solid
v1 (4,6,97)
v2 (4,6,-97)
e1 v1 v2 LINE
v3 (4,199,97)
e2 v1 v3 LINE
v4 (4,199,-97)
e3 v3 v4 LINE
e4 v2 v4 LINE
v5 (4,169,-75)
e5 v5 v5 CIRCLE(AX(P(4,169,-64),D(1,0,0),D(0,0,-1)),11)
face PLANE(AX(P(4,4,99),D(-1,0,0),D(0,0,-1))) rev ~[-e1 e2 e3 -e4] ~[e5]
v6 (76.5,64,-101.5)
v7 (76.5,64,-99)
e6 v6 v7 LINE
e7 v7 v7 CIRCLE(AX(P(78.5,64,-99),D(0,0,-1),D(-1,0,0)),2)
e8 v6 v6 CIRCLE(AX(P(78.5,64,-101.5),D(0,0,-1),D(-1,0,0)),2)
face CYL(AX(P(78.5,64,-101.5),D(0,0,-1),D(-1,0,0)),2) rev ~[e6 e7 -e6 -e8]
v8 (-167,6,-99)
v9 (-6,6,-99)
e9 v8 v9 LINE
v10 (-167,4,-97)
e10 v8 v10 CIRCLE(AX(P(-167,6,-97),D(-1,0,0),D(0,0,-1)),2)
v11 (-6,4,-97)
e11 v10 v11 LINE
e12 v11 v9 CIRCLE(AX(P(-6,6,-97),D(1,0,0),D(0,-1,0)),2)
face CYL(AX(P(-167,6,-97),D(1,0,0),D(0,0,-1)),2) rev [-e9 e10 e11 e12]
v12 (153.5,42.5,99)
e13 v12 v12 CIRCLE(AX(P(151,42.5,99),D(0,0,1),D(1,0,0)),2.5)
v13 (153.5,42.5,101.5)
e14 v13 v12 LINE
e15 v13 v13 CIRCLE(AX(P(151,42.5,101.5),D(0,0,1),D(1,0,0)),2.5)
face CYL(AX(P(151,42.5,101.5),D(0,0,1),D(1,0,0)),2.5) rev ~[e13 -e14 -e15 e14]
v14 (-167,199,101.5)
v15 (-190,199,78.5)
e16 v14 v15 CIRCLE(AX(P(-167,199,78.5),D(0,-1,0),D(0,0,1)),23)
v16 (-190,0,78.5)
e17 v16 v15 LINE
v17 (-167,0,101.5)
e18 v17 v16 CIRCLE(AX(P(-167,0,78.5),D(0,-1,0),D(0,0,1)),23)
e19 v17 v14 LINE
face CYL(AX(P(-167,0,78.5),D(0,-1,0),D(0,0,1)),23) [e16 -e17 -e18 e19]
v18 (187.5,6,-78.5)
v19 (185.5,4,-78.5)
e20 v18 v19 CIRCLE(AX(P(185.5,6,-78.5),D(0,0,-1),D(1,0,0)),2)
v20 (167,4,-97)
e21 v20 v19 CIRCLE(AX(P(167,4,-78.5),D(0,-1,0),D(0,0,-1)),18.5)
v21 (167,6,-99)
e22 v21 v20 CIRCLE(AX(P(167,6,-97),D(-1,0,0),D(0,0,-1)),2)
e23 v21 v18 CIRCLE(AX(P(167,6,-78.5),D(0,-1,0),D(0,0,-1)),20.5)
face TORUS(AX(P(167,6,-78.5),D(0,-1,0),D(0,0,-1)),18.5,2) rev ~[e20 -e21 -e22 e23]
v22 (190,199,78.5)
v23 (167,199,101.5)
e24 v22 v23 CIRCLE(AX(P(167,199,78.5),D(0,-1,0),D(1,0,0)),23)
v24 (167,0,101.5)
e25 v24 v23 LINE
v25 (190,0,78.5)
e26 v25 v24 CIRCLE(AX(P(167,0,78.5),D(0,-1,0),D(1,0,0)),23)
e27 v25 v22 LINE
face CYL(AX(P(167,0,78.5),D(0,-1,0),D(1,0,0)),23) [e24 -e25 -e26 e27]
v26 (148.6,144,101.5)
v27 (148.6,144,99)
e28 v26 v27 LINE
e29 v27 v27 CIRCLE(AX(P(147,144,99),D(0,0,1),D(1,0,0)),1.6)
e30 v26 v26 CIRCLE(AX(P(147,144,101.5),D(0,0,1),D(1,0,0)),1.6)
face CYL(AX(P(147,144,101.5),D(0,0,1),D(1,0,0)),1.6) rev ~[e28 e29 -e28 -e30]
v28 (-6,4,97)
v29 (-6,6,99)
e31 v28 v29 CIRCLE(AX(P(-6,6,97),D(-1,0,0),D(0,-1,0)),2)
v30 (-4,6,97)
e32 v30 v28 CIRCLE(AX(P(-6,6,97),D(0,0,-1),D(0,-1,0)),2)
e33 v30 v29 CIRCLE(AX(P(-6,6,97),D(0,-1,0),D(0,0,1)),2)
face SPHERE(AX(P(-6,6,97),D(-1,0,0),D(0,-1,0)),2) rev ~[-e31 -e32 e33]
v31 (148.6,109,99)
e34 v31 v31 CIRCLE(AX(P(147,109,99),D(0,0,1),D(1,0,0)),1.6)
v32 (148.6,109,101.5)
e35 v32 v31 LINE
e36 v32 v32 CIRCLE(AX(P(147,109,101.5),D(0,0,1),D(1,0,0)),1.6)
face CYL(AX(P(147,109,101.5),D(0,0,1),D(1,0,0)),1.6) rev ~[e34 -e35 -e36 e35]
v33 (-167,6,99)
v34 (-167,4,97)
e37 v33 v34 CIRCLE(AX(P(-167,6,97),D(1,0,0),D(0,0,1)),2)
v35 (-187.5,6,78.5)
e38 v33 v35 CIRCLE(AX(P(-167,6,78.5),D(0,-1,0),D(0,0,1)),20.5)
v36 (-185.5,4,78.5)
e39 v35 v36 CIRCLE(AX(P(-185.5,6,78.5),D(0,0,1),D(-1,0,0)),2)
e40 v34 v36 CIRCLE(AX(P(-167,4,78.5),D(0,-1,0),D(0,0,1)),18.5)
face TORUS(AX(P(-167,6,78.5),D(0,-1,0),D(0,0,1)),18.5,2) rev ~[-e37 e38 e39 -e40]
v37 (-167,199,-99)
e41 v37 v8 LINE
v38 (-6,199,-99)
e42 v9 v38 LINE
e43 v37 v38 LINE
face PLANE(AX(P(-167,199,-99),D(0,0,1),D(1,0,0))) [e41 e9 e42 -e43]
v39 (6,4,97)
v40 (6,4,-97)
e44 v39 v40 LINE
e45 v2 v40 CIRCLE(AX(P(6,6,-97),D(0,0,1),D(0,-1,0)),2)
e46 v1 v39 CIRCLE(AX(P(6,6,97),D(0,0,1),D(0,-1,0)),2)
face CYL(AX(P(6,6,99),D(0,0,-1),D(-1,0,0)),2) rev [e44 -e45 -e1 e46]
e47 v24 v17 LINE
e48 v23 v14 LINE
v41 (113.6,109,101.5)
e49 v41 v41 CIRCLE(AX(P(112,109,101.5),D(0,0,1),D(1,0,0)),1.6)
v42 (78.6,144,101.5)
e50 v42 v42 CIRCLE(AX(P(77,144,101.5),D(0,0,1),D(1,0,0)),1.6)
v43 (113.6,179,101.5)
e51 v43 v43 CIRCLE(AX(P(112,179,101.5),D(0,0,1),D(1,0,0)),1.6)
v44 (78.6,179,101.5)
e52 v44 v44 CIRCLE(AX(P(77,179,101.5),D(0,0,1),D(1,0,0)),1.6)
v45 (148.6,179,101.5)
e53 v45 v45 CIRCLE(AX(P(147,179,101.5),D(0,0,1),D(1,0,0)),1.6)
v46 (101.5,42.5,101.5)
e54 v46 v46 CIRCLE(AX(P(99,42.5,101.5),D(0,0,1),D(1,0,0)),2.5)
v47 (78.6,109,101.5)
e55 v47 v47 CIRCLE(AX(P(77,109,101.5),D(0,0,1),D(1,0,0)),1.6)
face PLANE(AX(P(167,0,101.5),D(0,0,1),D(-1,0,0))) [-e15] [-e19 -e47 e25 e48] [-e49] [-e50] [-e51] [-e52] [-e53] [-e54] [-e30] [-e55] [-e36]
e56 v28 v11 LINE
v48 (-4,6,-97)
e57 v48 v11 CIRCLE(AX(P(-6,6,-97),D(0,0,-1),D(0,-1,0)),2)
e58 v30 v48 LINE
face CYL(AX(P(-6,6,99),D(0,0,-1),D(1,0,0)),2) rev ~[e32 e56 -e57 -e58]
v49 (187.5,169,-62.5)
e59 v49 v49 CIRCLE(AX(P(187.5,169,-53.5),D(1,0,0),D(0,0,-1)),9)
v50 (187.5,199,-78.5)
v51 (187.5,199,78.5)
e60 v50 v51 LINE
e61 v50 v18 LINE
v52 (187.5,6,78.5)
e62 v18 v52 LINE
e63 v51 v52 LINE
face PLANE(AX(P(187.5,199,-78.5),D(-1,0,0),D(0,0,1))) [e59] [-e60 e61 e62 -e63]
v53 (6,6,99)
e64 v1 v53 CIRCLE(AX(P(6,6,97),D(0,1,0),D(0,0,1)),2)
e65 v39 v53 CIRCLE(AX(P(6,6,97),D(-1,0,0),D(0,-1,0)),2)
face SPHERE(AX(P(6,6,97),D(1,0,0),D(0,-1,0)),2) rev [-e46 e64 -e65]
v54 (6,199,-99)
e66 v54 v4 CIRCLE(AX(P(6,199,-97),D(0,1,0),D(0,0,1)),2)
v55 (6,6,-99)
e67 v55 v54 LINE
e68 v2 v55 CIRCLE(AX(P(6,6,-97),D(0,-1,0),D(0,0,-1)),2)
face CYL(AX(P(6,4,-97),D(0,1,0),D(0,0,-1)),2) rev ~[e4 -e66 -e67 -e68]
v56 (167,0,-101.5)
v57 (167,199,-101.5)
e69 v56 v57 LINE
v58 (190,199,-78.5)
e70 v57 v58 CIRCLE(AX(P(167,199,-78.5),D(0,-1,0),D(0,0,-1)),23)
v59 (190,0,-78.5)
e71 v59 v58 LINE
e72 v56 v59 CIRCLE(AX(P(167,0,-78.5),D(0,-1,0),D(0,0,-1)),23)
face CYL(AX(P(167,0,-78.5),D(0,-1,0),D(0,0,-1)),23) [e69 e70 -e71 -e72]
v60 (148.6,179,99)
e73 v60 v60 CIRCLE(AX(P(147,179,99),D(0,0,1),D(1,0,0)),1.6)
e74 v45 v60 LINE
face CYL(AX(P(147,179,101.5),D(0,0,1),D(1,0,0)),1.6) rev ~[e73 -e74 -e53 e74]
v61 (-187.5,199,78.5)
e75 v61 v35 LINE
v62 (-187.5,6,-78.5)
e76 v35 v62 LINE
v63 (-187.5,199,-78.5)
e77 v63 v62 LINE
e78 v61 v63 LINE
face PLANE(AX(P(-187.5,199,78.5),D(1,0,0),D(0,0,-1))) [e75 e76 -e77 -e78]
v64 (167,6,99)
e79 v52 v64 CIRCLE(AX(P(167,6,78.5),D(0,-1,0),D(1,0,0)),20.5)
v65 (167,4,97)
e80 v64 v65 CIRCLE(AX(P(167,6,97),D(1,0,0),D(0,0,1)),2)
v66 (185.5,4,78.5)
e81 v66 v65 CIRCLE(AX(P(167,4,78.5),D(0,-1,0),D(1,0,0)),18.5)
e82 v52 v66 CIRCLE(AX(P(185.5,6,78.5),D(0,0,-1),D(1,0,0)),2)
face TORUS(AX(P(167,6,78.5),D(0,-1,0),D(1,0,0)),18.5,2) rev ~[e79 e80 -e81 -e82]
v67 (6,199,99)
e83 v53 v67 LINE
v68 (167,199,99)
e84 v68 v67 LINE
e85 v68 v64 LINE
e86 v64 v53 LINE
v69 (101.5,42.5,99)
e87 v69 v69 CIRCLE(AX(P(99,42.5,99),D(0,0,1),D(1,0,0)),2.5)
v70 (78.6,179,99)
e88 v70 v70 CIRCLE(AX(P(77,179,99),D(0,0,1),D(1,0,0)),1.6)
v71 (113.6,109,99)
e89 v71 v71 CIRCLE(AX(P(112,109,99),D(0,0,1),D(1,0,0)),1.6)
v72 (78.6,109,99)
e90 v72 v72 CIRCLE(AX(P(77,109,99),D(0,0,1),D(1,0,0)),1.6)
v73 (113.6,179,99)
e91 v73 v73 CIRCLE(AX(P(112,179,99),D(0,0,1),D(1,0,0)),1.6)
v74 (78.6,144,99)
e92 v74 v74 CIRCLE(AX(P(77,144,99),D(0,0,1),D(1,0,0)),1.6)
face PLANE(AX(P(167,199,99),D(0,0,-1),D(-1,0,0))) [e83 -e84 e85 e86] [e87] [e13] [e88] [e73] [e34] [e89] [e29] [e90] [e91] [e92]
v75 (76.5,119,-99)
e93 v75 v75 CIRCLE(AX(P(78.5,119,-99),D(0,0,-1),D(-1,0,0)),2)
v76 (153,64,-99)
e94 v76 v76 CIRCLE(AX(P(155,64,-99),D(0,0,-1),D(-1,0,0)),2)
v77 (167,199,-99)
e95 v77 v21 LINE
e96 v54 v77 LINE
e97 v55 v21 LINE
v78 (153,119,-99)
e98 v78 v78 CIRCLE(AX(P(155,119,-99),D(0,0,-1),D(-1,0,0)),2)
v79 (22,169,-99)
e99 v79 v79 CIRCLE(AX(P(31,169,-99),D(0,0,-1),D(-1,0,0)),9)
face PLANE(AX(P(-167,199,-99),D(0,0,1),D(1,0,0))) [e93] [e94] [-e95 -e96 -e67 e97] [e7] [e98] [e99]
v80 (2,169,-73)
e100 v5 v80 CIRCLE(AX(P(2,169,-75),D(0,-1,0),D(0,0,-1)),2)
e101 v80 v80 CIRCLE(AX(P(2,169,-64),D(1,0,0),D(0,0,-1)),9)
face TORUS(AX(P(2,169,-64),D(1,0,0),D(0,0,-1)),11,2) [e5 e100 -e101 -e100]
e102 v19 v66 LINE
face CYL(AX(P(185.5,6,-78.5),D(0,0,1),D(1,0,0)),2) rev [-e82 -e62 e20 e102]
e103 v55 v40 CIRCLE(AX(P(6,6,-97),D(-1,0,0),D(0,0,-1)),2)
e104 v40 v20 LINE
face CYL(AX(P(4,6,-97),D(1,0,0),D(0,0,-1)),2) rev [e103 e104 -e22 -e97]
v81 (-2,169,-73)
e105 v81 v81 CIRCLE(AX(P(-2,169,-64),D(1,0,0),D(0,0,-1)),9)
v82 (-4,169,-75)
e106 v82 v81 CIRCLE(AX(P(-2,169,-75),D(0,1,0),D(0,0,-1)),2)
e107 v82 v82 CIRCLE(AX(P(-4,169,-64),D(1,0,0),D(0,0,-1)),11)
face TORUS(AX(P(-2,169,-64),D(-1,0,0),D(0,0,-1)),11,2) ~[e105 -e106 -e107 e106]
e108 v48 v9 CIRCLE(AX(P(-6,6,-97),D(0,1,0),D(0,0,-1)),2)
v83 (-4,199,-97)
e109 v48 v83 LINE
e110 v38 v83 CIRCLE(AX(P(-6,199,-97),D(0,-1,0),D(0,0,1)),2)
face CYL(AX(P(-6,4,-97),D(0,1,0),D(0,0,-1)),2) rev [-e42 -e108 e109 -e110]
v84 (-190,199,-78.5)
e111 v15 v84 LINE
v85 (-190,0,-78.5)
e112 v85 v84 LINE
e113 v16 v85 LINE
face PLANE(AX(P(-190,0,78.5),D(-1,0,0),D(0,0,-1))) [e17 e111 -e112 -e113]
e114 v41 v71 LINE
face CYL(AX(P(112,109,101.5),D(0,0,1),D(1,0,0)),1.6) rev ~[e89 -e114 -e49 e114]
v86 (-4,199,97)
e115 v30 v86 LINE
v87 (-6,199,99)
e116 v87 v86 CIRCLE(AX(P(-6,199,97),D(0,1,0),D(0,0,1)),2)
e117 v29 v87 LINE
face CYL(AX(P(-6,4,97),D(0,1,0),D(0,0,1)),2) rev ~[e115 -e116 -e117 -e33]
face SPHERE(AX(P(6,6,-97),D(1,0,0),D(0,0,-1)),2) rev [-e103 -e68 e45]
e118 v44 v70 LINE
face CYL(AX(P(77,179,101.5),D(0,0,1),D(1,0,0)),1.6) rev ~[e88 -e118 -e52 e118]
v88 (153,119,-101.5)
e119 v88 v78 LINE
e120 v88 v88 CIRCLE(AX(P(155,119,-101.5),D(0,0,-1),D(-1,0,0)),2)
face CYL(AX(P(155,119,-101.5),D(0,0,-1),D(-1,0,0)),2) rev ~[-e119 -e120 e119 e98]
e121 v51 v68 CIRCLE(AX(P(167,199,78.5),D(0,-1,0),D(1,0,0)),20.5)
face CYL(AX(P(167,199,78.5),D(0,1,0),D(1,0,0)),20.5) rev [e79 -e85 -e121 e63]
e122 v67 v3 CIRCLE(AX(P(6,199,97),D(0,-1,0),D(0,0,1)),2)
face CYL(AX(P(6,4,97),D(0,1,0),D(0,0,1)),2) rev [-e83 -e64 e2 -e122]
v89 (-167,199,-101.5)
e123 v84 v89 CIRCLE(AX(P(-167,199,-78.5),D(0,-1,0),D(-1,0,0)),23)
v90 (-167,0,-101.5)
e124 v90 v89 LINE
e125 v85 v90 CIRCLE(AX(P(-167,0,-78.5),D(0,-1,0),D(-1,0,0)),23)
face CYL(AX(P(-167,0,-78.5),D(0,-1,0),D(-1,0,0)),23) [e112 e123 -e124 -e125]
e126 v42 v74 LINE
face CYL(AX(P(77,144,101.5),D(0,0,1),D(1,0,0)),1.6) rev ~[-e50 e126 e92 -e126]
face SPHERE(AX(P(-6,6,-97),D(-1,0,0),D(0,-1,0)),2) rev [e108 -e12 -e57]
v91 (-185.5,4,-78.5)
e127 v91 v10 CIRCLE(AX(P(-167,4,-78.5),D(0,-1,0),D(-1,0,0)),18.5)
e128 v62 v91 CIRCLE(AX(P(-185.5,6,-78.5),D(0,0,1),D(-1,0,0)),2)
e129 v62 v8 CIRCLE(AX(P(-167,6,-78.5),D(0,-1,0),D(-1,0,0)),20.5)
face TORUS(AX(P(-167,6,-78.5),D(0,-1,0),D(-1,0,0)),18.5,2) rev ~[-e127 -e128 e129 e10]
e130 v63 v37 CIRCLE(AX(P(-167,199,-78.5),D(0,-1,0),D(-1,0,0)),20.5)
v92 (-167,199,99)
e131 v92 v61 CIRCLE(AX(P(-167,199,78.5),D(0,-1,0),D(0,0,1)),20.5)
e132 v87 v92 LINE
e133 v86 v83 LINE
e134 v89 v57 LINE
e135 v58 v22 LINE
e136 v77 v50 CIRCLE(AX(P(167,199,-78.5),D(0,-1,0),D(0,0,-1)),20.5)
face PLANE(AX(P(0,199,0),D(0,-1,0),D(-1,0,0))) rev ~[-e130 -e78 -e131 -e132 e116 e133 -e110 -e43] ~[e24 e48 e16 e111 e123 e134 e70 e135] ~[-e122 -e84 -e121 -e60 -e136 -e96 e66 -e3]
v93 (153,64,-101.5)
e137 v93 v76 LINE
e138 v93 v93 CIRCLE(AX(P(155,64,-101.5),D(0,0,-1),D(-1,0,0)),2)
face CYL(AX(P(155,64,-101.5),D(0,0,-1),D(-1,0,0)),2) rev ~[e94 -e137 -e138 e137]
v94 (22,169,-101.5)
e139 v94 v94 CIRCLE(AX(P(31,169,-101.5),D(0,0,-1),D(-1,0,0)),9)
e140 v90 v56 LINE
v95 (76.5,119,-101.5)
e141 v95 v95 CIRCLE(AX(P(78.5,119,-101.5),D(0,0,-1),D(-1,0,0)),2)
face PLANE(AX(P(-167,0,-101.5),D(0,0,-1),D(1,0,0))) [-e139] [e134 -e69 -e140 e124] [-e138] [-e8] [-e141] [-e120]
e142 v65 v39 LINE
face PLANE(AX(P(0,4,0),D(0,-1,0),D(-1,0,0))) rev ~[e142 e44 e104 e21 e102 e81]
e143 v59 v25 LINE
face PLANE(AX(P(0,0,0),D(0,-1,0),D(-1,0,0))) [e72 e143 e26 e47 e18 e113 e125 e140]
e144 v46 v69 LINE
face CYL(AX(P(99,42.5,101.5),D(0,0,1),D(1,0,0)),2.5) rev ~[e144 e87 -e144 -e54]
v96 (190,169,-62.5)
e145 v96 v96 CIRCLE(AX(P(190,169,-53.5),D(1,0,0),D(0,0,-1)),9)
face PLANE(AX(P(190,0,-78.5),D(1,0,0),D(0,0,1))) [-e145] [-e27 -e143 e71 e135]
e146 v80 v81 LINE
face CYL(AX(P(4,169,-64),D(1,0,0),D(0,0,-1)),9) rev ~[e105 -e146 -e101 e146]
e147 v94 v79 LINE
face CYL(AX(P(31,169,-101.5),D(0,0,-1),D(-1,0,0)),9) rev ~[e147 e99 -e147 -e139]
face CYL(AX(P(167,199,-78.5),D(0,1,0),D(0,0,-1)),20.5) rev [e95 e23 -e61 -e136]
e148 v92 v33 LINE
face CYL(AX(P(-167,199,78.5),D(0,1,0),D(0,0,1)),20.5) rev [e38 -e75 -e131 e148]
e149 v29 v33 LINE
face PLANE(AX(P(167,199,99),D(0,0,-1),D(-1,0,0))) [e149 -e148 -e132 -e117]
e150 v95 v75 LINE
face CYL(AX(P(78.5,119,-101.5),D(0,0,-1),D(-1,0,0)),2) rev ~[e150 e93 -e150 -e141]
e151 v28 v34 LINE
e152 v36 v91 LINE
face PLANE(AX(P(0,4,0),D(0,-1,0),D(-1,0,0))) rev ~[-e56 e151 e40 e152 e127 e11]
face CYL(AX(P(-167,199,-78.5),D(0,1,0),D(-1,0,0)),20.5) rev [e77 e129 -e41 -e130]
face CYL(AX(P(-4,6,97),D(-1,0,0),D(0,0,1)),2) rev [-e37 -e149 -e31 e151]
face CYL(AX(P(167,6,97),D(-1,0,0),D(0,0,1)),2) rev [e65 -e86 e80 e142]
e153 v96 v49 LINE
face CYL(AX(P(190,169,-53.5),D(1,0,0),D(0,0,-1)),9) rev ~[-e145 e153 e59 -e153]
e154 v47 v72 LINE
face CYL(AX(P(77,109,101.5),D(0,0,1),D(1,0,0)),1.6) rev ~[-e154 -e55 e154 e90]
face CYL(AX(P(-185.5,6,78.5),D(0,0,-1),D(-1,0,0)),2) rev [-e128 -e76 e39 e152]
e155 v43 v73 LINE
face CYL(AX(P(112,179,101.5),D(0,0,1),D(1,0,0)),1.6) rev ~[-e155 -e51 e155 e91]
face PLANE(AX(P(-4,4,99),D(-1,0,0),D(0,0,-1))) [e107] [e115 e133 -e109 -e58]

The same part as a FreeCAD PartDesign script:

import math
import FreeCAD as App
import Part
import Sketcher
from FreeCAD import Vector
Q = App.Units.Quantity


def edges_at(feature, points):
    """Names of the edges that pass closest to the given points."""
    edges = feature.Shape.Edges
    near = lambda p: min(range(len(edges)), key=lambda i: edges[i].distToShape(Part.Vertex(*p))[0])
    return sorted({f"Edge{near(p) + 1}" for p in points})

doc = App.newDocument("Part")
body = doc.addObject("PartDesign::Body", "Body")

sketch1 = doc.addObject("Sketcher::SketchObject", "Sketch")
body.addObject(sketch1)
sketch1.AttachmentSupport = (doc.XZ_Plane, [""])
sketch1.MapMode = "FlatFace"
sketch1.addGeometry([
    Part.LineSegment(Vector(167, -102, 0), Vector(-167, -102, 0)),
    Part.ArcOfCircle(Part.Circle(Vector(-167, -78, 0), Vector(0, 0, 1), 23), math.radians(-180), math.radians(-90)),
    Part.LineSegment(Vector(-190, -78, 0), Vector(-190, 78, 0)),
    Part.ArcOfCircle(Part.Circle(Vector(-167, 78, 0), Vector(0, 0, 1), 23), math.radians(90), math.radians(180)),
    Part.LineSegment(Vector(-167, 102, 0), Vector(167, 102, 0)),
    Part.ArcOfCircle(Part.Circle(Vector(167, 78, 0), Vector(0, 0, 1), 23), math.radians(0), math.radians(90)),
    Part.LineSegment(Vector(190, 78, 0), Vector(190, -78, 0)),
    Part.ArcOfCircle(Part.Circle(Vector(167, -78, 0), Vector(0, 0, 1), 23), math.radians(-90), math.radians(0)),
], False)
sketch1.addConstraint([
    Sketcher.Constraint("Tangent", 0, 2, 1, 2),
    Sketcher.Constraint("Tangent", 1, 1, 2, 1),
    Sketcher.Constraint("Tangent", 2, 2, 3, 2),
    Sketcher.Constraint("Tangent", 3, 1, 4, 1),
    Sketcher.Constraint("Tangent", 4, 2, 5, 2),
    Sketcher.Constraint("Tangent", 5, 1, 6, 1),
    Sketcher.Constraint("Tangent", 6, 2, 7, 2),
    Sketcher.Constraint("Tangent", 7, 1, 0, 1),
    Sketcher.Constraint("Horizontal", 0),
    Sketcher.Constraint("Vertical", 2),
    Sketcher.Constraint("Horizontal", 4),
    Sketcher.Constraint("Vertical", 6),
    Sketcher.Constraint("Equal", 1, 3),
    Sketcher.Constraint("Equal", 3, 5),
    Sketcher.Constraint("Equal", 5, 7),
    Sketcher.Constraint("Symmetric", 1, 3, 5, 3, -1, 1),
    Sketcher.Constraint("Radius", 1, Q("23 mm")),
    Sketcher.Constraint("DistanceX", 0, 2, 0, 1, Q("334 mm")),
    Sketcher.Constraint("DistanceY", 2, 1, 2, 2, Q("157 mm")),
])
pad1 = doc.addObject("PartDesign::Pad", "Pad")
body.addObject(pad1)
pad1.Profile = sketch1
pad1.Length = 199
pad1.Reversed = True

sketch2 = doc.addObject("Sketcher::SketchObject", "Sketch001")
body.addObject(sketch2)
sketch2.AttachmentSupport = (doc.XZ_Plane, [""])
sketch2.MapMode = "FlatFace"
sketch2.AttachmentOffset = App.Placement(Vector(0, 0, -199), App.Rotation())
sketch2.addGeometry([
    Part.LineSegment(Vector(167, -99, 0), Vector(-167, -99, 0)),
    Part.ArcOfCircle(Part.Circle(Vector(-167, -78, 0), Vector(0, 0, 1), 21), math.radians(-180), math.radians(-90)),
    Part.LineSegment(Vector(-188, -78, 0), Vector(-188, 78, 0)),
    Part.ArcOfCircle(Part.Circle(Vector(-167, 78, 0), Vector(0, 0, 1), 21), math.radians(90), math.radians(180)),
    Part.LineSegment(Vector(-167, 99, 0), Vector(167, 99, 0)),
    Part.ArcOfCircle(Part.Circle(Vector(167, 78, 0), Vector(0, 0, 1), 21), math.radians(0), math.radians(90)),
    Part.LineSegment(Vector(188, 78, 0), Vector(188, -78, 0)),
    Part.ArcOfCircle(Part.Circle(Vector(167, -78, 0), Vector(0, 0, 1), 21), math.radians(-90), math.radians(0)),
], False)
sketch2.addConstraint([
    Sketcher.Constraint("Tangent", 0, 2, 1, 2),
    Sketcher.Constraint("Tangent", 1, 1, 2, 1),
    Sketcher.Constraint("Tangent", 2, 2, 3, 2),
    Sketcher.Constraint("Tangent", 3, 1, 4, 1),
    Sketcher.Constraint("Tangent", 4, 2, 5, 2),
    Sketcher.Constraint("Tangent", 5, 1, 6, 1),
    Sketcher.Constraint("Tangent", 6, 2, 7, 2),
    Sketcher.Constraint("Tangent", 7, 1, 0, 1),
    Sketcher.Constraint("Horizontal", 0),
    Sketcher.Constraint("Vertical", 2),
    Sketcher.Constraint("Horizontal", 4),
    Sketcher.Constraint("Vertical", 6),
    Sketcher.Constraint("Equal", 1, 3),
    Sketcher.Constraint("Equal", 3, 5),
    Sketcher.Constraint("Equal", 5, 7),
    Sketcher.Constraint("Symmetric", 1, 3, 5, 3, -1, 1),
    Sketcher.Constraint("Radius", 1, Q("20.5 mm")),
    Sketcher.Constraint("DistanceX", 0, 2, 0, 1, Q("334 mm")),
    Sketcher.Constraint("DistanceY", 2, 1, 2, 2, Q("157 mm")),
])
pocket1 = doc.addObject("PartDesign::Pocket", "Pocket")
body.addObject(pocket1)
pocket1.Profile = sketch2
pocket1.Length = 195
pocket1.Reversed = True

sketch3 = doc.addObject("Sketcher::SketchObject", "Sketch002")
body.addObject(sketch3)
sketch3.AttachmentSupport = (doc.XZ_Plane, [""])
sketch3.MapMode = "FlatFace"
sketch3.AttachmentOffset = App.Placement(Vector(0, 0, -4), App.Rotation())
sketch3.addGeometry([
    Part.LineSegment(Vector(-4, -99, 0), Vector(-4, 99, 0)),
    Part.LineSegment(Vector(-4, 99, 0), Vector(4, 99, 0)),
    Part.LineSegment(Vector(4, 99, 0), Vector(4, -99, 0)),
    Part.LineSegment(Vector(4, -99, 0), Vector(-4, -99, 0)),
], False)
sketch3.addConstraint([
    Sketcher.Constraint("Coincident", 0, 2, 1, 1),
    Sketcher.Constraint("Coincident", 1, 2, 2, 1),
    Sketcher.Constraint("Coincident", 2, 2, 3, 1),
    Sketcher.Constraint("Coincident", 3, 2, 0, 1),
    Sketcher.Constraint("Vertical", 0),
    Sketcher.Constraint("Horizontal", 1),
    Sketcher.Constraint("Vertical", 2),
    Sketcher.Constraint("Horizontal", 3),
    Sketcher.Constraint("Symmetric", 0, 2, 2, 2, -1, 1),
    Sketcher.Constraint("DistanceX", 1, 1, 1, 2, Q("8 mm")),
    Sketcher.Constraint("DistanceY", 0, 1, 0, 2, Q("198 mm")),
])
pad2 = doc.addObject("PartDesign::Pad", "Pad001")
body.addObject(pad2)
pad2.Profile = sketch3
pad2.Length = 195
pad2.Reversed = True
doc.recompute()

fillet = doc.addObject("PartDesign::Fillet", "Fillet")
body.addObject(fillet)
fillet.Base = (pad2, edges_at(pad2, [
    (-181.496, 4, 92.996),
    (-187.5, 4, 0),
    (-181.496, 4, -92.996),
    (85.5, 4, -99),
    (181.496, 4, -92.996),
    (187.5, 4, 0),
    (181.496, 4, 92.996),
    (-85.5, 4, 99),
    (85.5, 4, 99),
    (-85.5, 4, -99),
    (4, 101.5, -99),
    (-4, 4, 0),
    (-4, 101.5, -99),
    (-4, 101.5, 99),
    (4, 4, 0),
    (4, 101.5, 99),
]))
fillet.Radius = 2

sketch4 = doc.addObject("Sketcher::SketchObject", "Sketch003")
body.addObject(sketch4)
sketch4.AttachmentSupport = (doc.XY_Plane, [""])
sketch4.MapMode = "FlatFace"
sketch4.AttachmentOffset = App.Placement(Vector(0, 0, -101.5), App.Rotation())
sketch4.addGeometry(Part.Circle(Vector(155, 119, 0), Vector(0, 0, 1), 2), False)
sketch4.addConstraint([
    Sketcher.Constraint("Diameter", 0, Q("4 mm")),
    Sketcher.Constraint("DistanceX", -1, 1, 0, 3, Q("155 mm")),
    Sketcher.Constraint("DistanceY", -1, 1, 0, 3, Q("119 mm")),
])
pocket2 = doc.addObject("PartDesign::Pocket", "Pocket001")
body.addObject(pocket2)
pocket2.Profile = sketch4
pocket2.Type = "UpToFirst"
pocket2.Reversed = True

sketch5 = doc.addObject("Sketcher::SketchObject", "Sketch004")
body.addObject(sketch5)
sketch5.AttachmentSupport = (doc.XY_Plane, [""])
sketch5.MapMode = "FlatFace"
sketch5.AttachmentOffset = App.Placement(Vector(0, 0, -101.5), App.Rotation())
sketch5.addGeometry(Part.Circle(Vector(155, 64, 0), Vector(0, 0, 1), 2), False)
sketch5.addConstraint([
    Sketcher.Constraint("Diameter", 0, Q("4 mm")),
    Sketcher.Constraint("DistanceX", -1, 1, 0, 3, Q("155 mm")),
    Sketcher.Constraint("DistanceY", -1, 1, 0, 3, Q("64 mm")),
])
pocket3 = doc.addObject("PartDesign::Pocket", "Pocket002")
body.addObject(pocket3)
pocket3.Profile = sketch5
pocket3.Type = "UpToFirst"
pocket3.Reversed = True

sketch6 = doc.addObject("Sketcher::SketchObject", "Sketch005")
body.addObject(sketch6)
sketch6.AttachmentSupport = (doc.XY_Plane, [""])
sketch6.MapMode = "FlatFace"
sketch6.AttachmentOffset = App.Placement(Vector(0, 0, -101.5), App.Rotation())
sketch6.addGeometry(Part.Circle(Vector(78.5, 64, 0), Vector(0, 0, 1), 2), False)
sketch6.addConstraint([
    Sketcher.Constraint("Diameter", 0, Q("4 mm")),
    Sketcher.Constraint("DistanceY", -1, 1, 0, 3, Q("64 mm")),
    Sketcher.Constraint("DistanceX", -1, 1, 0, 3, Q("78.5 mm")),
])
pocket4 = doc.addObject("PartDesign::Pocket", "Pocket003")
body.addObject(pocket4)
pocket4.Profile = sketch6
pocket4.Type = "UpToFirst"
pocket4.Reversed = True

sketch7 = doc.addObject("Sketcher::SketchObject", "Sketch006")
body.addObject(sketch7)
sketch7.AttachmentSupport = (doc.XY_Plane, [""])
sketch7.MapMode = "FlatFace"
sketch7.AttachmentOffset = App.Placement(Vector(0, 0, -101.5), App.Rotation())
sketch7.addGeometry(Part.Circle(Vector(78.5, 119, 0), Vector(0, 0, 1), 2), False)
sketch7.addConstraint([
    Sketcher.Constraint("Diameter", 0, Q("4 mm")),
    Sketcher.Constraint("DistanceY", -1, 1, 0, 3, Q("119 mm")),
    Sketcher.Constraint("DistanceX", -1, 1, 0, 3, Q("78.5 mm")),
])
pocket5 = doc.addObject("PartDesign::Pocket", "Pocket004")
body.addObject(pocket5)
pocket5.Profile = sketch7
pocket5.Type = "UpToFirst"
pocket5.Reversed = True

sketch8 = doc.addObject("Sketcher::SketchObject", "Sketch007")
body.addObject(sketch8)
sketch8.AttachmentSupport = (doc.XY_Plane, [""])
sketch8.MapMode = "FlatFace"
sketch8.AttachmentOffset = App.Placement(Vector(0, 0, -101.5), App.Rotation())
sketch8.addGeometry(Part.Circle(Vector(31, 169, 0), Vector(0, 0, 1), 9), False)
sketch8.addConstraint([
    Sketcher.Constraint("Diameter", 0, Q("18 mm")),
    Sketcher.Constraint("DistanceX", -1, 1, 0, 3, Q("31 mm")),
    Sketcher.Constraint("DistanceY", -1, 1, 0, 3, Q("169 mm")),
])
pocket6 = doc.addObject("PartDesign::Pocket", "Pocket005")
body.addObject(pocket6)
pocket6.Profile = sketch8
pocket6.Type = "UpToFirst"
pocket6.Reversed = True

sketch9 = doc.addObject("Sketcher::SketchObject", "Sketch008")
body.addObject(sketch9)
sketch9.AttachmentSupport = (doc.YZ_Plane, [""])
sketch9.MapMode = "FlatFace"
sketch9.AttachmentOffset = App.Placement(Vector(0, 0, 4), App.Rotation())
sketch9.addGeometry(Part.Circle(Vector(169, -64, 0), Vector(0, 0, 1), 9), False)
sketch9.addConstraint([
    Sketcher.Constraint("Diameter", 0, Q("18 mm")),
    Sketcher.Constraint("DistanceX", -1, 1, 0, 3, Q("169 mm")),
    Sketcher.Constraint("DistanceY", 0, 3, -1, 1, Q("64 mm")),
])
pocket7 = doc.addObject("PartDesign::Pocket", "Pocket006")
body.addObject(pocket7)
pocket7.Profile = sketch9
pocket7.Type = "UpToFirst"
doc.recompute()

fillet2 = doc.addObject("PartDesign::Fillet", "Fillet001")
body.addObject(fillet2)
fillet2.Base = (pocket7, edges_at(pocket7, [(-4, 169, -55), (4, 169, -55)]))
fillet2.Radius = 2

sketch10 = doc.addObject("Sketcher::SketchObject", "Sketch009")
body.addObject(sketch10)
sketch10.AttachmentSupport = (doc.YZ_Plane, [""])
sketch10.MapMode = "FlatFace"
sketch10.AttachmentOffset = App.Placement(Vector(0, 0, 190), App.Rotation())
sketch10.addGeometry(Part.Circle(Vector(169, -54, 0), Vector(0, 0, 1), 9), False)
sketch10.addConstraint([
    Sketcher.Constraint("Diameter", 0, Q("18 mm")),
    Sketcher.Constraint("DistanceX", -1, 1, 0, 3, Q("169 mm")),
    Sketcher.Constraint("DistanceY", 0, 3, -1, 1, Q("53.5 mm")),
])
pocket8 = doc.addObject("PartDesign::Pocket", "Pocket007")
body.addObject(pocket8)
pocket8.Profile = sketch10
pocket8.Type = "UpToFirst"

sketch11 = doc.addObject("Sketcher::SketchObject", "Sketch010")
body.addObject(sketch11)
sketch11.AttachmentSupport = (doc.XY_Plane, [""])
sketch11.MapMode = "FlatFace"
sketch11.AttachmentOffset = App.Placement(Vector(0, 0, 101.5), App.Rotation())
sketch11.addGeometry(Part.Circle(Vector(77, 179, 0), Vector(0, 0, 1), 1.6), False)
sketch11.addConstraint([
    Sketcher.Constraint("Diameter", 0, Q("3.2 mm")),
    Sketcher.Constraint("DistanceX", -1, 1, 0, 3, Q("77 mm")),
    Sketcher.Constraint("DistanceY", -1, 1, 0, 3, Q("179 mm")),
])
pocket9 = doc.addObject("PartDesign::Pocket", "Pocket008")
body.addObject(pocket9)
pocket9.Profile = sketch11
pocket9.Type = "UpToFirst"

sketch12 = doc.addObject("Sketcher::SketchObject", "Sketch011")
body.addObject(sketch12)
sketch12.AttachmentSupport = (doc.XY_Plane, [""])
sketch12.MapMode = "FlatFace"
sketch12.AttachmentOffset = App.Placement(Vector(0, 0, 101.5), App.Rotation())
sketch12.addGeometry(Part.Circle(Vector(147, 179, 0), Vector(0, 0, 1), 1.6), False)
sketch12.addConstraint([
    Sketcher.Constraint("Diameter", 0, Q("3.2 mm")),
    Sketcher.Constraint("DistanceX", -1, 1, 0, 3, Q("147 mm")),
    Sketcher.Constraint("DistanceY", -1, 1, 0, 3, Q("179 mm")),
])
pocket10 = doc.addObject("PartDesign::Pocket", "Pocket009")
body.addObject(pocket10)
pocket10.Profile = sketch12
pocket10.Type = "UpToFirst"

sketch13 = doc.addObject("Sketcher::SketchObject", "Sketch012")
body.addObject(sketch13)
sketch13.AttachmentSupport = (doc.XY_Plane, [""])
sketch13.MapMode = "FlatFace"
sketch13.AttachmentOffset = App.Placement(Vector(0, 0, 101.5), App.Rotation())
sketch13.addGeometry(Part.Circle(Vector(77, 109, 0), Vector(0, 0, 1), 1.6), False)
sketch13.addConstraint([
    Sketcher.Constraint("Diameter", 0, Q("3.2 mm")),
    Sketcher.Constraint("DistanceX", -1, 1, 0, 3, Q("77 mm")),
    Sketcher.Constraint("DistanceY", -1, 1, 0, 3, Q("109 mm")),
])
pocket11 = doc.addObject("PartDesign::Pocket", "Pocket010")
body.addObject(pocket11)
pocket11.Profile = sketch13
pocket11.Type = "UpToFirst"

sketch14 = doc.addObject("Sketcher::SketchObject", "Sketch013")
body.addObject(sketch14)
sketch14.AttachmentSupport = (doc.XY_Plane, [""])
sketch14.MapMode = "FlatFace"
sketch14.AttachmentOffset = App.Placement(Vector(0, 0, 101.5), App.Rotation())
sketch14.addGeometry(Part.Circle(Vector(147, 109, 0), Vector(0, 0, 1), 1.6), False)
sketch14.addConstraint([
    Sketcher.Constraint("Diameter", 0, Q("3.2 mm")),
    Sketcher.Constraint("DistanceX", -1, 1, 0, 3, Q("147 mm")),
    Sketcher.Constraint("DistanceY", -1, 1, 0, 3, Q("109 mm")),
])
pocket12 = doc.addObject("PartDesign::Pocket", "Pocket011")
body.addObject(pocket12)
pocket12.Profile = sketch14
pocket12.Type = "UpToFirst"

sketch15 = doc.addObject("Sketcher::SketchObject", "Sketch014")
body.addObject(sketch15)
sketch15.AttachmentSupport = (doc.XY_Plane, [""])
sketch15.MapMode = "FlatFace"
sketch15.AttachmentOffset = App.Placement(Vector(0, 0, 101.5), App.Rotation())
sketch15.addGeometry(Part.Circle(Vector(77, 144, 0), Vector(0, 0, 1), 1.6), False)
sketch15.addConstraint([
    Sketcher.Constraint("Diameter", 0, Q("3.2 mm")),
    Sketcher.Constraint("DistanceX", -1, 1, 0, 3, Q("77 mm")),
    Sketcher.Constraint("DistanceY", -1, 1, 0, 3, Q("144 mm")),
])
pocket13 = doc.addObject("PartDesign::Pocket", "Pocket012")
body.addObject(pocket13)
pocket13.Profile = sketch15
pocket13.Type = "UpToFirst"

sketch16 = doc.addObject("Sketcher::SketchObject", "Sketch015")
body.addObject(sketch16)
sketch16.AttachmentSupport = (doc.XY_Plane, [""])
sketch16.MapMode = "FlatFace"
sketch16.AttachmentOffset = App.Placement(Vector(0, 0, 101.5), App.Rotation())
sketch16.addGeometry(Part.Circle(Vector(112, 179, 0), Vector(0, 0, 1), 1.6), False)
sketch16.addConstraint([
    Sketcher.Constraint("Diameter", 0, Q("3.2 mm")),
    Sketcher.Constraint("DistanceX", -1, 1, 0, 3, Q("112 mm")),
    Sketcher.Constraint("DistanceY", -1, 1, 0, 3, Q("179 mm")),
])
pocket14 = doc.addObject("PartDesign::Pocket", "Pocket013")
body.addObject(pocket14)
pocket14.Profile = sketch16
pocket14.Type = "UpToFirst"

sketch17 = doc.addObject("Sketcher::SketchObject", "Sketch016")
body.addObject(sketch17)
sketch17.AttachmentSupport = (doc.XY_Plane, [""])
sketch17.MapMode = "FlatFace"
sketch17.AttachmentOffset = App.Placement(Vector(0, 0, 101.5), App.Rotation())
sketch17.addGeometry(Part.Circle(Vector(147, 144, 0), Vector(0, 0, 1), 1.6), False)
sketch17.addConstraint([
    Sketcher.Constraint("Diameter", 0, Q("3.2 mm")),
    Sketcher.Constraint("DistanceX", -1, 1, 0, 3, Q("147 mm")),
    Sketcher.Constraint("DistanceY", -1, 1, 0, 3, Q("144 mm")),
])
pocket15 = doc.addObject("PartDesign::Pocket", "Pocket014")
body.addObject(pocket15)
pocket15.Profile = sketch17
pocket15.Type = "UpToFirst"

sketch18 = doc.addObject("Sketcher::SketchObject", "Sketch017")
body.addObject(sketch18)
sketch18.AttachmentSupport = (doc.XY_Plane, [""])
sketch18.MapMode = "FlatFace"
sketch18.AttachmentOffset = App.Placement(Vector(0, 0, 101.5), App.Rotation())
sketch18.addGeometry(Part.Circle(Vector(112, 109, 0), Vector(0, 0, 1), 1.6), False)
sketch18.addConstraint([
    Sketcher.Constraint("Diameter", 0, Q("3.2 mm")),
    Sketcher.Constraint("DistanceX", -1, 1, 0, 3, Q("112 mm")),
    Sketcher.Constraint("DistanceY", -1, 1, 0, 3, Q("109 mm")),
])
pocket16 = doc.addObject("PartDesign::Pocket", "Pocket015")
body.addObject(pocket16)
pocket16.Profile = sketch18
pocket16.Type = "UpToFirst"

sketch19 = doc.addObject("Sketcher::SketchObject", "Sketch018")
body.addObject(sketch19)
sketch19.AttachmentSupport = (doc.XY_Plane, [""])
sketch19.MapMode = "FlatFace"
sketch19.AttachmentOffset = App.Placement(Vector(0, 0, 101.5), App.Rotation())
sketch19.addGeometry(Part.Circle(Vector(99, 42.5, 0), Vector(0, 0, 1), 2.5), False)
sketch19.addConstraint([
    Sketcher.Constraint("Diameter", 0, Q("5 mm")),
    Sketcher.Constraint("DistanceX", -1, 1, 0, 3, Q("99 mm")),
    Sketcher.Constraint("DistanceY", -1, 1, 0, 3, Q("42.5 mm")),
])
pocket17 = doc.addObject("PartDesign::Pocket", "Pocket016")
body.addObject(pocket17)
pocket17.Profile = sketch19
pocket17.Type = "UpToFirst"

sketch20 = doc.addObject("Sketcher::SketchObject", "Sketch019")
body.addObject(sketch20)
sketch20.AttachmentSupport = (doc.XY_Plane, [""])
sketch20.MapMode = "FlatFace"
sketch20.AttachmentOffset = App.Placement(Vector(0, 0, 101.5), App.Rotation())
sketch20.addGeometry(Part.Circle(Vector(151, 42.5, 0), Vector(0, 0, 1), 2.5), False)
sketch20.addConstraint([
    Sketcher.Constraint("Diameter", 0, Q("5 mm")),
    Sketcher.Constraint("DistanceX", -1, 1, 0, 3, Q("151 mm")),
    Sketcher.Constraint("DistanceY", -1, 1, 0, 3, Q("42.5 mm")),
])
pocket18 = doc.addObject("PartDesign::Pocket", "Pocket017")
body.addObject(pocket18)
pocket18.Profile = sketch20
pocket18.Type = "UpToFirst"

doc.recompute()
